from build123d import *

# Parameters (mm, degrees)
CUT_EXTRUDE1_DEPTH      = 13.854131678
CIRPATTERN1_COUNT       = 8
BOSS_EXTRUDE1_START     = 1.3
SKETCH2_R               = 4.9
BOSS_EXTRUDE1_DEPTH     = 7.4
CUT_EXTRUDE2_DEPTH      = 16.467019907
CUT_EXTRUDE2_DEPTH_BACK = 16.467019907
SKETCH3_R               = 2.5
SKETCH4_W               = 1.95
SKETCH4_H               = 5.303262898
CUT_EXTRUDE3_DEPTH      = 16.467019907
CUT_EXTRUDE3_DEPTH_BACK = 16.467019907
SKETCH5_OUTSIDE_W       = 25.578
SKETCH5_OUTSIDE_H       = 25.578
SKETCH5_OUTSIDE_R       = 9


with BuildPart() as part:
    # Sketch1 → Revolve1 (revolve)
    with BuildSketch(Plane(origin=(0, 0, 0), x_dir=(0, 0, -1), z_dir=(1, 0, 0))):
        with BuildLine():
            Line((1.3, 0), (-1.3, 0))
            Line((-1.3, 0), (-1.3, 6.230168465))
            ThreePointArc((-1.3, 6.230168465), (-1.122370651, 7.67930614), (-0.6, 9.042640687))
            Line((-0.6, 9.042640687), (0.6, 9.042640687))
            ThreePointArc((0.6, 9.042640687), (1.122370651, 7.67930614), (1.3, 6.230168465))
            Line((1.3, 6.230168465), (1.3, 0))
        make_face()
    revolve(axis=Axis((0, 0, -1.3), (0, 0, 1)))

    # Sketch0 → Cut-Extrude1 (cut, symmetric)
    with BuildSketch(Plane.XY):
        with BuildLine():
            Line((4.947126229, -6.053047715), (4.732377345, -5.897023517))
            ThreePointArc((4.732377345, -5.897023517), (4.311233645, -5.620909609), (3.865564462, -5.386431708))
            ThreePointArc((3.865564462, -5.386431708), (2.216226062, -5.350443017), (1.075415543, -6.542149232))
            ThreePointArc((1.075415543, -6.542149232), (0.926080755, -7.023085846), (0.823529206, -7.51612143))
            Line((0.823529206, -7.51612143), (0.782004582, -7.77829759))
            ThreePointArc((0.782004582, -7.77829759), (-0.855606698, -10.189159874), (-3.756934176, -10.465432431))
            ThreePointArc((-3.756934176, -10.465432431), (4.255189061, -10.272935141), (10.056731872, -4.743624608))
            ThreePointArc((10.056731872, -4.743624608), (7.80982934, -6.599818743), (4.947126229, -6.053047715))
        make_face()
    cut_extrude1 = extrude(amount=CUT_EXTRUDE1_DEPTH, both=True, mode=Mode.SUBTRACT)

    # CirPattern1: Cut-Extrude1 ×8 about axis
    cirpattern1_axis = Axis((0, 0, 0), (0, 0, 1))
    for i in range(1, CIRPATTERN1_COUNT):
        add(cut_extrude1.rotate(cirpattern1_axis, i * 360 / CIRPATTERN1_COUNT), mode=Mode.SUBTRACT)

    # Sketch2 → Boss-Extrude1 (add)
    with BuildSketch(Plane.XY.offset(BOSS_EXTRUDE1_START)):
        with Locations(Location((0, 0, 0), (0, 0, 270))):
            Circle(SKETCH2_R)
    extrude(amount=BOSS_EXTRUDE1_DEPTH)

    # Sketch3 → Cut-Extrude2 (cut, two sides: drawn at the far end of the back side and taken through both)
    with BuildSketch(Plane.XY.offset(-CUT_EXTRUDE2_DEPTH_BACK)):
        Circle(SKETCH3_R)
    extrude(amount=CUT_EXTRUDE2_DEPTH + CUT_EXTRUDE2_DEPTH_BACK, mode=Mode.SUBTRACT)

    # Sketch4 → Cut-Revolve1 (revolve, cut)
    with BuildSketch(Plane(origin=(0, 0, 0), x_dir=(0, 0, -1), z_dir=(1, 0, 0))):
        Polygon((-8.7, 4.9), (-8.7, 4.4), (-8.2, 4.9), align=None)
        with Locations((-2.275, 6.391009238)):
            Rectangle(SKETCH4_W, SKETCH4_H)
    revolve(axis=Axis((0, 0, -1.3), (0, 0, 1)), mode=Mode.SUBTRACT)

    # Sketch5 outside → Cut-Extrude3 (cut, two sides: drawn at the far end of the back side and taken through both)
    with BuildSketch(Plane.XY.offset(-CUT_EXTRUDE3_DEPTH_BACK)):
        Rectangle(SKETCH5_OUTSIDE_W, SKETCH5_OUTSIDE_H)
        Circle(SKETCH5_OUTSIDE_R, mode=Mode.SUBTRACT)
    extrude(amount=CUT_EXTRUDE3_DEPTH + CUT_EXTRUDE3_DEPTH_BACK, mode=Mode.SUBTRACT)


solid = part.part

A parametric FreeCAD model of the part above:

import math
import FreeCAD as App
import Part
import Sketcher

V = App.Vector
Q = App.Units.Quantity


def add_polygon(sketch, points):
    """Adds a closed chain of lines whose ends are joined by coincident constraints."""
    first, n = sketch.GeometryCount, len(points)
    for a, b in zip(points, points[1:] + points[:1]):
        sketch.addGeometry(Part.LineSegment(App.Vector(*a, 0), App.Vector(*b, 0)), False)
    for i in range(n):
        sketch.addConstraint(Sketcher.Constraint("Coincident", first + i, 2, first + (i + 1) % n, 1))

doc = App.newDocument("Part")
body = doc.addObject("PartDesign::Body", "Body")

sketch1 = body.newObject("Sketcher::SketchObject", "Sketch")
sketch1.AttachmentSupport = (doc.getObject("YZ_Plane"), [""])
sketch1.MapMode = "FlatFace"
sketch1.addGeometry(Part.LineSegment(V(0, 1.3, 0), V(0, -1.3, 0)), False)
sketch1.addGeometry(Part.LineSegment(V(0, -1.3, 0), V(6.2, -1.3, 0)), False)
sketch1.addGeometry(Part.ArcOfCircle(Part.Circle(V(6.2, 4.7, 0), V(0, 0, 1), 6), math.radians(-90), math.radians(-62)), False)
sketch1.addGeometry(Part.LineSegment(V(9, -0.6, 0), V(9, 0.6, 0)), False)
sketch1.addGeometry(Part.ArcOfCircle(Part.Circle(V(6.2, -4.7, 0), V(0, 0, 1), 6), math.radians(62), math.radians(90)), False)
sketch1.addGeometry(Part.LineSegment(V(6.2, 1.3, 0), V(0, 1.3, 0)), False)
sketch1.addConstraint(Sketcher.Constraint("Coincident", 0, 2, 1, 1))
sketch1.addConstraint(Sketcher.Constraint("Tangent", 1, 2, 2, 1))
sketch1.addConstraint(Sketcher.Constraint("Coincident", 2, 2, 3, 1))
sketch1.addConstraint(Sketcher.Constraint("Coincident", 3, 2, 4, 1))
sketch1.addConstraint(Sketcher.Constraint("Tangent", 4, 2, 5, 1))
sketch1.addConstraint(Sketcher.Constraint("Coincident", 5, 2, 0, 1))
sketch1.addConstraint(Sketcher.Constraint("Vertical", 0))
sketch1.addConstraint(Sketcher.Constraint("Horizontal", 1))
sketch1.addConstraint(Sketcher.Constraint("Vertical", 3))
sketch1.addConstraint(Sketcher.Constraint("Horizontal", 5))
sketch1.addConstraint(Sketcher.Constraint("Equal", 2, 4))
sketch1.addConstraint(Sketcher.Constraint("Symmetric", 0, 2, 5, 2, -1, 1))
sketch1.addConstraint(Sketcher.Constraint("Vertical", 2, 3, 4, 3))
sketch1.addConstraint(Sketcher.Constraint("Radius", 2, 6.0))
sketch1.addConstraint(Sketcher.Constraint("DistanceY", 0, 2, 0, 1, 2.6))
sketch1.addConstraint(Sketcher.Constraint("DistanceY", 3, 1, 3, 2, 1.2))
sketch1.addConstraint(Sketcher.Constraint("DistanceX", 1, 1, 1, 2, 6.230168))
revolution = body.newObject("PartDesign::Revolution", "Revolution")
revolution.Profile = sketch1
revolution.ReferenceAxis = (sketch1, ["V_Axis"])
revolution.Angle = 360

sketch2 = body.newObject("Sketcher::SketchObject", "Sketch001")
sketch2.AttachmentSupport = (doc.getObject("XY_Plane"), [""])
sketch2.MapMode = "FlatFace"
sketch2.addGeometry(Part.LineSegment(V(4.95, -6.05, 0), V(4.73, -5.9, 0)), False)
sketch2.addGeometry(Part.ArcOfCircle(Part.Circle(V(1.65, -10.14, 0), V(0, 0, 1), 5.25), math.radians(54), math.radians(65)), False)
sketch2.addGeometry(Part.ArcOfCircle(Part.Circle(V(3, -7.24, 0), V(0, 0, 1), 2.05), math.radians(65), math.radians(160)), False)
sketch2.addGeometry(Part.ArcOfCircle(Part.Circle(V(6.01, -8.34, 0), V(0, 0, 1), 5.25), math.radians(160), math.radians(171)), False)
sketch2.addGeometry(Part.LineSegment(V(0.82, -7.52, 0), V(0.78, -7.78, 0)), False)
sketch2.addGeometry(Part.ArcOfCircle(Part.Circle(V(-2.6, -7.24, 0), V(0, 0, 1), 3.42), math.radians(-110), math.radians(-9)), False)
sketch2.addGeometry(Part.ArcOfCircle(Part.Circle(V(0, 0, 0), V(0, 0, 1), 11.12), math.radians(-110), math.radians(-25)), False)
sketch2.addGeometry(Part.ArcOfCircle(Part.Circle(V(6.96, -3.28, 0), V(0, 0, 1), 3.42), math.radians(-126), math.radians(-25)), False)
sketch2.addConstraint(Sketcher.Constraint("Tangent", 0, 2, 1, 1))
sketch2.addConstraint(Sketcher.Constraint("Tangent", 1, 2, 2, 1))
sketch2.addConstraint(Sketcher.Constraint("Tangent", 2, 2, 3, 1))
sketch2.addConstraint(Sketcher.Constraint("Tangent", 3, 2, 4, 1))
sketch2.addConstraint(Sketcher.Constraint("Tangent", 4, 2, 5, 2))
sketch2.addConstraint(Sketcher.Constraint("Tangent", 5, 1, 6, 1))
sketch2.addConstraint(Sketcher.Constraint("Tangent", 6, 2, 7, 2))
sketch2.addConstraint(Sketcher.Constraint("Tangent", 7, 1, 0, 1))
sketch2.addConstraint(Sketcher.Constraint("Coincident", 6, 3, -1, 1))
sketch2.addConstraint(Sketcher.Constraint("Equal", 1, 3))
sketch2.addConstraint(Sketcher.Constraint("Equal", 5, 7))
sketch2.addConstraint(Sketcher.Constraint("Horizontal", 2, 3, 5, 3))
sketch2.addConstraint(Sketcher.Constraint("Equal", 0, 4))
sketch2.addConstraint(Sketcher.Constraint("Angle", 0, Q("144 deg")))
sketch2.addConstraint(Sketcher.Constraint("Angle", 4, Q("-99 deg")))
sketch2.addConstraint(Sketcher.Constraint("DistanceX", -1, 1, 2, 3, 3.0))
sketch2.addConstraint(Sketcher.Constraint("DistanceX", 5, 3, -1, 1, 2.6))
sketch2.addConstraint(Sketcher.Constraint("Radius", 1, 5.2481))
sketch2.addConstraint(Sketcher.Constraint("Radius", 2, 2.0481))
sketch2.addConstraint(Sketcher.Constraint("Radius", 5, 3.424162))
sketch2.addConstraint(Sketcher.Constraint("Radius", 6, 11.119345))
pocket1 = body.newObject("PartDesign::Pocket", "Pocket")
pocket1.Profile = sketch2
pocket1.Length = 27.708263
pocket1.Midplane = True
doc.recompute()

polarpattern = body.newObject("PartDesign::PolarPattern", "PolarPattern")
polarpattern.Originals = [pocket1]
polarpattern.Axis = (doc.getObject("Z_Axis"), [""])
polarpattern.Angle = 360
polarpattern.Occurrences = 8
body.Tip = polarpattern

sketch3 = body.newObject("Sketcher::SketchObject", "Sketch002")
sketch3.AttachmentSupport = (doc.getObject("XY_Plane"), [""])
sketch3.MapMode = "FlatFace"
sketch3.AttachmentOffset = App.Placement(V(0, 0, 1.3), App.Rotation())
sketch3.addGeometry(Part.Circle(V(0, 0, 0), V(0, 0, 1), 4.9), False)
sketch3.addConstraint(Sketcher.Constraint("Coincident", 0, 3, -1, 1))
sketch3.addConstraint(Sketcher.Constraint("Diameter", 0, 9.8))
pad1 = body.newObject("PartDesign::Pad", "Pad")
pad1.Profile = sketch3
pad1.Length = 7.4

sketch4 = body.newObject("Sketcher::SketchObject", "Sketch003")
sketch4.AttachmentSupport = (doc.getObject("XY_Plane"), [""])
sketch4.MapMode = "FlatFace"
sketch4.addGeometry(Part.Circle(V(0, 0, 0), V(0, 0, 1), 2.5), False)
sketch4.addConstraint(Sketcher.Constraint("Coincident", 0, 3, -1, 1))
sketch4.addConstraint(Sketcher.Constraint("Diameter", 0, 5.0))
pocket2 = body.newObject("PartDesign::Pocket", "Pocket001")
pocket2.Profile = sketch4
pocket2.Type = "ThroughAll"
pocket2.Midplane = True

sketch5 = body.newObject("Sketcher::SketchObject", "Sketch004")
sketch5.AttachmentSupport = (doc.getObject("YZ_Plane"), [""])
sketch5.MapMode = "FlatFace"
add_polygon(sketch5, [(4.9, 8.7), (4.4, 8.7), (4.9, 8.2)])
add_polygon(sketch5, [(9, 3.2), (3.7, 3.2), (3.7, 1.3), (9, 1.3)])
sketch5.addConstraint(Sketcher.Constraint("Horizontal", 0))
sketch5.addConstraint(Sketcher.Constraint("Vertical", 2))
sketch5.addConstraint(Sketcher.Constraint("Horizontal", 3))
sketch5.addConstraint(Sketcher.Constraint("Vertical", 4))
sketch5.addConstraint(Sketcher.Constraint("Horizontal", 5))
sketch5.addConstraint(Sketcher.Constraint("Vertical", 6))
sketch5.addConstraint(Sketcher.Constraint("Equal", 0, 2))
sketch5.addConstraint(Sketcher.Constraint("DistanceX", 0, 2, 0, 1, 0.5))
sketch5.addConstraint(Sketcher.Constraint("DistanceY", 4, 2, 4, 1, 1.95))
sketch5.addConstraint(Sketcher.Constraint("DistanceX", -1, 1, 0, 2, 4.4))
sketch5.addConstraint(Sketcher.Constraint("DistanceY", -1, 1, 0, 2, 8.7))
sketch5.addConstraint(Sketcher.Constraint("DistanceY", -1, 1, 4, 2, 1.3))
sketch5.addConstraint(Sketcher.Constraint("DistanceX", 3, 2, 3, 1, 5.303263))
sketch5.addConstraint(Sketcher.Constraint("DistanceX", -1, 1, 5, 2, 9.042641))
groove = body.newObject("PartDesign::Groove", "Groove")
groove.Profile = sketch5
groove.ReferenceAxis = (sketch5, ["V_Axis"])
groove.Angle = 360

sketch6 = body.newObject("Sketcher::SketchObject", "Sketch005")
sketch6.AttachmentSupport = (doc.getObject("XY_Plane"), [""])
sketch6.MapMode = "FlatFace"
add_polygon(sketch6, [(-13, 13), (-13, -13), (13, -13), (13, 13)])
sketch6.addGeometry(Part.Circle(V(0, 0, 0), V(0, 0, 1), 9), False)
sketch6.addConstraint(Sketcher.Constraint("Vertical", 0))
sketch6.addConstraint(Sketcher.Constraint("Horizontal", 1))
sketch6.addConstraint(Sketcher.Constraint("Vertical", 2))
sketch6.addConstraint(Sketcher.Constraint("Horizontal", 3))
sketch6.addConstraint(Sketcher.Constraint("Coincident", 4, 3, -1, 1))
sketch6.addConstraint(Sketcher.Constraint("Symmetric", 0, 2, 2, 2, -1, 1))
sketch6.addConstraint(Sketcher.Constraint("Equal", 3, 0))
sketch6.addConstraint(Sketcher.Constraint("Diameter", 4, 18.0))
sketch6.addConstraint(Sketcher.Constraint("DistanceX", 1, 1, 1, 2, 25.578))
pocket3 = body.newObject("PartDesign::Pocket", "Pocket002")
pocket3.Profile = sketch6
pocket3.Type = "ThroughAll"
pocket3.Midplane = True

doc.recompute()
